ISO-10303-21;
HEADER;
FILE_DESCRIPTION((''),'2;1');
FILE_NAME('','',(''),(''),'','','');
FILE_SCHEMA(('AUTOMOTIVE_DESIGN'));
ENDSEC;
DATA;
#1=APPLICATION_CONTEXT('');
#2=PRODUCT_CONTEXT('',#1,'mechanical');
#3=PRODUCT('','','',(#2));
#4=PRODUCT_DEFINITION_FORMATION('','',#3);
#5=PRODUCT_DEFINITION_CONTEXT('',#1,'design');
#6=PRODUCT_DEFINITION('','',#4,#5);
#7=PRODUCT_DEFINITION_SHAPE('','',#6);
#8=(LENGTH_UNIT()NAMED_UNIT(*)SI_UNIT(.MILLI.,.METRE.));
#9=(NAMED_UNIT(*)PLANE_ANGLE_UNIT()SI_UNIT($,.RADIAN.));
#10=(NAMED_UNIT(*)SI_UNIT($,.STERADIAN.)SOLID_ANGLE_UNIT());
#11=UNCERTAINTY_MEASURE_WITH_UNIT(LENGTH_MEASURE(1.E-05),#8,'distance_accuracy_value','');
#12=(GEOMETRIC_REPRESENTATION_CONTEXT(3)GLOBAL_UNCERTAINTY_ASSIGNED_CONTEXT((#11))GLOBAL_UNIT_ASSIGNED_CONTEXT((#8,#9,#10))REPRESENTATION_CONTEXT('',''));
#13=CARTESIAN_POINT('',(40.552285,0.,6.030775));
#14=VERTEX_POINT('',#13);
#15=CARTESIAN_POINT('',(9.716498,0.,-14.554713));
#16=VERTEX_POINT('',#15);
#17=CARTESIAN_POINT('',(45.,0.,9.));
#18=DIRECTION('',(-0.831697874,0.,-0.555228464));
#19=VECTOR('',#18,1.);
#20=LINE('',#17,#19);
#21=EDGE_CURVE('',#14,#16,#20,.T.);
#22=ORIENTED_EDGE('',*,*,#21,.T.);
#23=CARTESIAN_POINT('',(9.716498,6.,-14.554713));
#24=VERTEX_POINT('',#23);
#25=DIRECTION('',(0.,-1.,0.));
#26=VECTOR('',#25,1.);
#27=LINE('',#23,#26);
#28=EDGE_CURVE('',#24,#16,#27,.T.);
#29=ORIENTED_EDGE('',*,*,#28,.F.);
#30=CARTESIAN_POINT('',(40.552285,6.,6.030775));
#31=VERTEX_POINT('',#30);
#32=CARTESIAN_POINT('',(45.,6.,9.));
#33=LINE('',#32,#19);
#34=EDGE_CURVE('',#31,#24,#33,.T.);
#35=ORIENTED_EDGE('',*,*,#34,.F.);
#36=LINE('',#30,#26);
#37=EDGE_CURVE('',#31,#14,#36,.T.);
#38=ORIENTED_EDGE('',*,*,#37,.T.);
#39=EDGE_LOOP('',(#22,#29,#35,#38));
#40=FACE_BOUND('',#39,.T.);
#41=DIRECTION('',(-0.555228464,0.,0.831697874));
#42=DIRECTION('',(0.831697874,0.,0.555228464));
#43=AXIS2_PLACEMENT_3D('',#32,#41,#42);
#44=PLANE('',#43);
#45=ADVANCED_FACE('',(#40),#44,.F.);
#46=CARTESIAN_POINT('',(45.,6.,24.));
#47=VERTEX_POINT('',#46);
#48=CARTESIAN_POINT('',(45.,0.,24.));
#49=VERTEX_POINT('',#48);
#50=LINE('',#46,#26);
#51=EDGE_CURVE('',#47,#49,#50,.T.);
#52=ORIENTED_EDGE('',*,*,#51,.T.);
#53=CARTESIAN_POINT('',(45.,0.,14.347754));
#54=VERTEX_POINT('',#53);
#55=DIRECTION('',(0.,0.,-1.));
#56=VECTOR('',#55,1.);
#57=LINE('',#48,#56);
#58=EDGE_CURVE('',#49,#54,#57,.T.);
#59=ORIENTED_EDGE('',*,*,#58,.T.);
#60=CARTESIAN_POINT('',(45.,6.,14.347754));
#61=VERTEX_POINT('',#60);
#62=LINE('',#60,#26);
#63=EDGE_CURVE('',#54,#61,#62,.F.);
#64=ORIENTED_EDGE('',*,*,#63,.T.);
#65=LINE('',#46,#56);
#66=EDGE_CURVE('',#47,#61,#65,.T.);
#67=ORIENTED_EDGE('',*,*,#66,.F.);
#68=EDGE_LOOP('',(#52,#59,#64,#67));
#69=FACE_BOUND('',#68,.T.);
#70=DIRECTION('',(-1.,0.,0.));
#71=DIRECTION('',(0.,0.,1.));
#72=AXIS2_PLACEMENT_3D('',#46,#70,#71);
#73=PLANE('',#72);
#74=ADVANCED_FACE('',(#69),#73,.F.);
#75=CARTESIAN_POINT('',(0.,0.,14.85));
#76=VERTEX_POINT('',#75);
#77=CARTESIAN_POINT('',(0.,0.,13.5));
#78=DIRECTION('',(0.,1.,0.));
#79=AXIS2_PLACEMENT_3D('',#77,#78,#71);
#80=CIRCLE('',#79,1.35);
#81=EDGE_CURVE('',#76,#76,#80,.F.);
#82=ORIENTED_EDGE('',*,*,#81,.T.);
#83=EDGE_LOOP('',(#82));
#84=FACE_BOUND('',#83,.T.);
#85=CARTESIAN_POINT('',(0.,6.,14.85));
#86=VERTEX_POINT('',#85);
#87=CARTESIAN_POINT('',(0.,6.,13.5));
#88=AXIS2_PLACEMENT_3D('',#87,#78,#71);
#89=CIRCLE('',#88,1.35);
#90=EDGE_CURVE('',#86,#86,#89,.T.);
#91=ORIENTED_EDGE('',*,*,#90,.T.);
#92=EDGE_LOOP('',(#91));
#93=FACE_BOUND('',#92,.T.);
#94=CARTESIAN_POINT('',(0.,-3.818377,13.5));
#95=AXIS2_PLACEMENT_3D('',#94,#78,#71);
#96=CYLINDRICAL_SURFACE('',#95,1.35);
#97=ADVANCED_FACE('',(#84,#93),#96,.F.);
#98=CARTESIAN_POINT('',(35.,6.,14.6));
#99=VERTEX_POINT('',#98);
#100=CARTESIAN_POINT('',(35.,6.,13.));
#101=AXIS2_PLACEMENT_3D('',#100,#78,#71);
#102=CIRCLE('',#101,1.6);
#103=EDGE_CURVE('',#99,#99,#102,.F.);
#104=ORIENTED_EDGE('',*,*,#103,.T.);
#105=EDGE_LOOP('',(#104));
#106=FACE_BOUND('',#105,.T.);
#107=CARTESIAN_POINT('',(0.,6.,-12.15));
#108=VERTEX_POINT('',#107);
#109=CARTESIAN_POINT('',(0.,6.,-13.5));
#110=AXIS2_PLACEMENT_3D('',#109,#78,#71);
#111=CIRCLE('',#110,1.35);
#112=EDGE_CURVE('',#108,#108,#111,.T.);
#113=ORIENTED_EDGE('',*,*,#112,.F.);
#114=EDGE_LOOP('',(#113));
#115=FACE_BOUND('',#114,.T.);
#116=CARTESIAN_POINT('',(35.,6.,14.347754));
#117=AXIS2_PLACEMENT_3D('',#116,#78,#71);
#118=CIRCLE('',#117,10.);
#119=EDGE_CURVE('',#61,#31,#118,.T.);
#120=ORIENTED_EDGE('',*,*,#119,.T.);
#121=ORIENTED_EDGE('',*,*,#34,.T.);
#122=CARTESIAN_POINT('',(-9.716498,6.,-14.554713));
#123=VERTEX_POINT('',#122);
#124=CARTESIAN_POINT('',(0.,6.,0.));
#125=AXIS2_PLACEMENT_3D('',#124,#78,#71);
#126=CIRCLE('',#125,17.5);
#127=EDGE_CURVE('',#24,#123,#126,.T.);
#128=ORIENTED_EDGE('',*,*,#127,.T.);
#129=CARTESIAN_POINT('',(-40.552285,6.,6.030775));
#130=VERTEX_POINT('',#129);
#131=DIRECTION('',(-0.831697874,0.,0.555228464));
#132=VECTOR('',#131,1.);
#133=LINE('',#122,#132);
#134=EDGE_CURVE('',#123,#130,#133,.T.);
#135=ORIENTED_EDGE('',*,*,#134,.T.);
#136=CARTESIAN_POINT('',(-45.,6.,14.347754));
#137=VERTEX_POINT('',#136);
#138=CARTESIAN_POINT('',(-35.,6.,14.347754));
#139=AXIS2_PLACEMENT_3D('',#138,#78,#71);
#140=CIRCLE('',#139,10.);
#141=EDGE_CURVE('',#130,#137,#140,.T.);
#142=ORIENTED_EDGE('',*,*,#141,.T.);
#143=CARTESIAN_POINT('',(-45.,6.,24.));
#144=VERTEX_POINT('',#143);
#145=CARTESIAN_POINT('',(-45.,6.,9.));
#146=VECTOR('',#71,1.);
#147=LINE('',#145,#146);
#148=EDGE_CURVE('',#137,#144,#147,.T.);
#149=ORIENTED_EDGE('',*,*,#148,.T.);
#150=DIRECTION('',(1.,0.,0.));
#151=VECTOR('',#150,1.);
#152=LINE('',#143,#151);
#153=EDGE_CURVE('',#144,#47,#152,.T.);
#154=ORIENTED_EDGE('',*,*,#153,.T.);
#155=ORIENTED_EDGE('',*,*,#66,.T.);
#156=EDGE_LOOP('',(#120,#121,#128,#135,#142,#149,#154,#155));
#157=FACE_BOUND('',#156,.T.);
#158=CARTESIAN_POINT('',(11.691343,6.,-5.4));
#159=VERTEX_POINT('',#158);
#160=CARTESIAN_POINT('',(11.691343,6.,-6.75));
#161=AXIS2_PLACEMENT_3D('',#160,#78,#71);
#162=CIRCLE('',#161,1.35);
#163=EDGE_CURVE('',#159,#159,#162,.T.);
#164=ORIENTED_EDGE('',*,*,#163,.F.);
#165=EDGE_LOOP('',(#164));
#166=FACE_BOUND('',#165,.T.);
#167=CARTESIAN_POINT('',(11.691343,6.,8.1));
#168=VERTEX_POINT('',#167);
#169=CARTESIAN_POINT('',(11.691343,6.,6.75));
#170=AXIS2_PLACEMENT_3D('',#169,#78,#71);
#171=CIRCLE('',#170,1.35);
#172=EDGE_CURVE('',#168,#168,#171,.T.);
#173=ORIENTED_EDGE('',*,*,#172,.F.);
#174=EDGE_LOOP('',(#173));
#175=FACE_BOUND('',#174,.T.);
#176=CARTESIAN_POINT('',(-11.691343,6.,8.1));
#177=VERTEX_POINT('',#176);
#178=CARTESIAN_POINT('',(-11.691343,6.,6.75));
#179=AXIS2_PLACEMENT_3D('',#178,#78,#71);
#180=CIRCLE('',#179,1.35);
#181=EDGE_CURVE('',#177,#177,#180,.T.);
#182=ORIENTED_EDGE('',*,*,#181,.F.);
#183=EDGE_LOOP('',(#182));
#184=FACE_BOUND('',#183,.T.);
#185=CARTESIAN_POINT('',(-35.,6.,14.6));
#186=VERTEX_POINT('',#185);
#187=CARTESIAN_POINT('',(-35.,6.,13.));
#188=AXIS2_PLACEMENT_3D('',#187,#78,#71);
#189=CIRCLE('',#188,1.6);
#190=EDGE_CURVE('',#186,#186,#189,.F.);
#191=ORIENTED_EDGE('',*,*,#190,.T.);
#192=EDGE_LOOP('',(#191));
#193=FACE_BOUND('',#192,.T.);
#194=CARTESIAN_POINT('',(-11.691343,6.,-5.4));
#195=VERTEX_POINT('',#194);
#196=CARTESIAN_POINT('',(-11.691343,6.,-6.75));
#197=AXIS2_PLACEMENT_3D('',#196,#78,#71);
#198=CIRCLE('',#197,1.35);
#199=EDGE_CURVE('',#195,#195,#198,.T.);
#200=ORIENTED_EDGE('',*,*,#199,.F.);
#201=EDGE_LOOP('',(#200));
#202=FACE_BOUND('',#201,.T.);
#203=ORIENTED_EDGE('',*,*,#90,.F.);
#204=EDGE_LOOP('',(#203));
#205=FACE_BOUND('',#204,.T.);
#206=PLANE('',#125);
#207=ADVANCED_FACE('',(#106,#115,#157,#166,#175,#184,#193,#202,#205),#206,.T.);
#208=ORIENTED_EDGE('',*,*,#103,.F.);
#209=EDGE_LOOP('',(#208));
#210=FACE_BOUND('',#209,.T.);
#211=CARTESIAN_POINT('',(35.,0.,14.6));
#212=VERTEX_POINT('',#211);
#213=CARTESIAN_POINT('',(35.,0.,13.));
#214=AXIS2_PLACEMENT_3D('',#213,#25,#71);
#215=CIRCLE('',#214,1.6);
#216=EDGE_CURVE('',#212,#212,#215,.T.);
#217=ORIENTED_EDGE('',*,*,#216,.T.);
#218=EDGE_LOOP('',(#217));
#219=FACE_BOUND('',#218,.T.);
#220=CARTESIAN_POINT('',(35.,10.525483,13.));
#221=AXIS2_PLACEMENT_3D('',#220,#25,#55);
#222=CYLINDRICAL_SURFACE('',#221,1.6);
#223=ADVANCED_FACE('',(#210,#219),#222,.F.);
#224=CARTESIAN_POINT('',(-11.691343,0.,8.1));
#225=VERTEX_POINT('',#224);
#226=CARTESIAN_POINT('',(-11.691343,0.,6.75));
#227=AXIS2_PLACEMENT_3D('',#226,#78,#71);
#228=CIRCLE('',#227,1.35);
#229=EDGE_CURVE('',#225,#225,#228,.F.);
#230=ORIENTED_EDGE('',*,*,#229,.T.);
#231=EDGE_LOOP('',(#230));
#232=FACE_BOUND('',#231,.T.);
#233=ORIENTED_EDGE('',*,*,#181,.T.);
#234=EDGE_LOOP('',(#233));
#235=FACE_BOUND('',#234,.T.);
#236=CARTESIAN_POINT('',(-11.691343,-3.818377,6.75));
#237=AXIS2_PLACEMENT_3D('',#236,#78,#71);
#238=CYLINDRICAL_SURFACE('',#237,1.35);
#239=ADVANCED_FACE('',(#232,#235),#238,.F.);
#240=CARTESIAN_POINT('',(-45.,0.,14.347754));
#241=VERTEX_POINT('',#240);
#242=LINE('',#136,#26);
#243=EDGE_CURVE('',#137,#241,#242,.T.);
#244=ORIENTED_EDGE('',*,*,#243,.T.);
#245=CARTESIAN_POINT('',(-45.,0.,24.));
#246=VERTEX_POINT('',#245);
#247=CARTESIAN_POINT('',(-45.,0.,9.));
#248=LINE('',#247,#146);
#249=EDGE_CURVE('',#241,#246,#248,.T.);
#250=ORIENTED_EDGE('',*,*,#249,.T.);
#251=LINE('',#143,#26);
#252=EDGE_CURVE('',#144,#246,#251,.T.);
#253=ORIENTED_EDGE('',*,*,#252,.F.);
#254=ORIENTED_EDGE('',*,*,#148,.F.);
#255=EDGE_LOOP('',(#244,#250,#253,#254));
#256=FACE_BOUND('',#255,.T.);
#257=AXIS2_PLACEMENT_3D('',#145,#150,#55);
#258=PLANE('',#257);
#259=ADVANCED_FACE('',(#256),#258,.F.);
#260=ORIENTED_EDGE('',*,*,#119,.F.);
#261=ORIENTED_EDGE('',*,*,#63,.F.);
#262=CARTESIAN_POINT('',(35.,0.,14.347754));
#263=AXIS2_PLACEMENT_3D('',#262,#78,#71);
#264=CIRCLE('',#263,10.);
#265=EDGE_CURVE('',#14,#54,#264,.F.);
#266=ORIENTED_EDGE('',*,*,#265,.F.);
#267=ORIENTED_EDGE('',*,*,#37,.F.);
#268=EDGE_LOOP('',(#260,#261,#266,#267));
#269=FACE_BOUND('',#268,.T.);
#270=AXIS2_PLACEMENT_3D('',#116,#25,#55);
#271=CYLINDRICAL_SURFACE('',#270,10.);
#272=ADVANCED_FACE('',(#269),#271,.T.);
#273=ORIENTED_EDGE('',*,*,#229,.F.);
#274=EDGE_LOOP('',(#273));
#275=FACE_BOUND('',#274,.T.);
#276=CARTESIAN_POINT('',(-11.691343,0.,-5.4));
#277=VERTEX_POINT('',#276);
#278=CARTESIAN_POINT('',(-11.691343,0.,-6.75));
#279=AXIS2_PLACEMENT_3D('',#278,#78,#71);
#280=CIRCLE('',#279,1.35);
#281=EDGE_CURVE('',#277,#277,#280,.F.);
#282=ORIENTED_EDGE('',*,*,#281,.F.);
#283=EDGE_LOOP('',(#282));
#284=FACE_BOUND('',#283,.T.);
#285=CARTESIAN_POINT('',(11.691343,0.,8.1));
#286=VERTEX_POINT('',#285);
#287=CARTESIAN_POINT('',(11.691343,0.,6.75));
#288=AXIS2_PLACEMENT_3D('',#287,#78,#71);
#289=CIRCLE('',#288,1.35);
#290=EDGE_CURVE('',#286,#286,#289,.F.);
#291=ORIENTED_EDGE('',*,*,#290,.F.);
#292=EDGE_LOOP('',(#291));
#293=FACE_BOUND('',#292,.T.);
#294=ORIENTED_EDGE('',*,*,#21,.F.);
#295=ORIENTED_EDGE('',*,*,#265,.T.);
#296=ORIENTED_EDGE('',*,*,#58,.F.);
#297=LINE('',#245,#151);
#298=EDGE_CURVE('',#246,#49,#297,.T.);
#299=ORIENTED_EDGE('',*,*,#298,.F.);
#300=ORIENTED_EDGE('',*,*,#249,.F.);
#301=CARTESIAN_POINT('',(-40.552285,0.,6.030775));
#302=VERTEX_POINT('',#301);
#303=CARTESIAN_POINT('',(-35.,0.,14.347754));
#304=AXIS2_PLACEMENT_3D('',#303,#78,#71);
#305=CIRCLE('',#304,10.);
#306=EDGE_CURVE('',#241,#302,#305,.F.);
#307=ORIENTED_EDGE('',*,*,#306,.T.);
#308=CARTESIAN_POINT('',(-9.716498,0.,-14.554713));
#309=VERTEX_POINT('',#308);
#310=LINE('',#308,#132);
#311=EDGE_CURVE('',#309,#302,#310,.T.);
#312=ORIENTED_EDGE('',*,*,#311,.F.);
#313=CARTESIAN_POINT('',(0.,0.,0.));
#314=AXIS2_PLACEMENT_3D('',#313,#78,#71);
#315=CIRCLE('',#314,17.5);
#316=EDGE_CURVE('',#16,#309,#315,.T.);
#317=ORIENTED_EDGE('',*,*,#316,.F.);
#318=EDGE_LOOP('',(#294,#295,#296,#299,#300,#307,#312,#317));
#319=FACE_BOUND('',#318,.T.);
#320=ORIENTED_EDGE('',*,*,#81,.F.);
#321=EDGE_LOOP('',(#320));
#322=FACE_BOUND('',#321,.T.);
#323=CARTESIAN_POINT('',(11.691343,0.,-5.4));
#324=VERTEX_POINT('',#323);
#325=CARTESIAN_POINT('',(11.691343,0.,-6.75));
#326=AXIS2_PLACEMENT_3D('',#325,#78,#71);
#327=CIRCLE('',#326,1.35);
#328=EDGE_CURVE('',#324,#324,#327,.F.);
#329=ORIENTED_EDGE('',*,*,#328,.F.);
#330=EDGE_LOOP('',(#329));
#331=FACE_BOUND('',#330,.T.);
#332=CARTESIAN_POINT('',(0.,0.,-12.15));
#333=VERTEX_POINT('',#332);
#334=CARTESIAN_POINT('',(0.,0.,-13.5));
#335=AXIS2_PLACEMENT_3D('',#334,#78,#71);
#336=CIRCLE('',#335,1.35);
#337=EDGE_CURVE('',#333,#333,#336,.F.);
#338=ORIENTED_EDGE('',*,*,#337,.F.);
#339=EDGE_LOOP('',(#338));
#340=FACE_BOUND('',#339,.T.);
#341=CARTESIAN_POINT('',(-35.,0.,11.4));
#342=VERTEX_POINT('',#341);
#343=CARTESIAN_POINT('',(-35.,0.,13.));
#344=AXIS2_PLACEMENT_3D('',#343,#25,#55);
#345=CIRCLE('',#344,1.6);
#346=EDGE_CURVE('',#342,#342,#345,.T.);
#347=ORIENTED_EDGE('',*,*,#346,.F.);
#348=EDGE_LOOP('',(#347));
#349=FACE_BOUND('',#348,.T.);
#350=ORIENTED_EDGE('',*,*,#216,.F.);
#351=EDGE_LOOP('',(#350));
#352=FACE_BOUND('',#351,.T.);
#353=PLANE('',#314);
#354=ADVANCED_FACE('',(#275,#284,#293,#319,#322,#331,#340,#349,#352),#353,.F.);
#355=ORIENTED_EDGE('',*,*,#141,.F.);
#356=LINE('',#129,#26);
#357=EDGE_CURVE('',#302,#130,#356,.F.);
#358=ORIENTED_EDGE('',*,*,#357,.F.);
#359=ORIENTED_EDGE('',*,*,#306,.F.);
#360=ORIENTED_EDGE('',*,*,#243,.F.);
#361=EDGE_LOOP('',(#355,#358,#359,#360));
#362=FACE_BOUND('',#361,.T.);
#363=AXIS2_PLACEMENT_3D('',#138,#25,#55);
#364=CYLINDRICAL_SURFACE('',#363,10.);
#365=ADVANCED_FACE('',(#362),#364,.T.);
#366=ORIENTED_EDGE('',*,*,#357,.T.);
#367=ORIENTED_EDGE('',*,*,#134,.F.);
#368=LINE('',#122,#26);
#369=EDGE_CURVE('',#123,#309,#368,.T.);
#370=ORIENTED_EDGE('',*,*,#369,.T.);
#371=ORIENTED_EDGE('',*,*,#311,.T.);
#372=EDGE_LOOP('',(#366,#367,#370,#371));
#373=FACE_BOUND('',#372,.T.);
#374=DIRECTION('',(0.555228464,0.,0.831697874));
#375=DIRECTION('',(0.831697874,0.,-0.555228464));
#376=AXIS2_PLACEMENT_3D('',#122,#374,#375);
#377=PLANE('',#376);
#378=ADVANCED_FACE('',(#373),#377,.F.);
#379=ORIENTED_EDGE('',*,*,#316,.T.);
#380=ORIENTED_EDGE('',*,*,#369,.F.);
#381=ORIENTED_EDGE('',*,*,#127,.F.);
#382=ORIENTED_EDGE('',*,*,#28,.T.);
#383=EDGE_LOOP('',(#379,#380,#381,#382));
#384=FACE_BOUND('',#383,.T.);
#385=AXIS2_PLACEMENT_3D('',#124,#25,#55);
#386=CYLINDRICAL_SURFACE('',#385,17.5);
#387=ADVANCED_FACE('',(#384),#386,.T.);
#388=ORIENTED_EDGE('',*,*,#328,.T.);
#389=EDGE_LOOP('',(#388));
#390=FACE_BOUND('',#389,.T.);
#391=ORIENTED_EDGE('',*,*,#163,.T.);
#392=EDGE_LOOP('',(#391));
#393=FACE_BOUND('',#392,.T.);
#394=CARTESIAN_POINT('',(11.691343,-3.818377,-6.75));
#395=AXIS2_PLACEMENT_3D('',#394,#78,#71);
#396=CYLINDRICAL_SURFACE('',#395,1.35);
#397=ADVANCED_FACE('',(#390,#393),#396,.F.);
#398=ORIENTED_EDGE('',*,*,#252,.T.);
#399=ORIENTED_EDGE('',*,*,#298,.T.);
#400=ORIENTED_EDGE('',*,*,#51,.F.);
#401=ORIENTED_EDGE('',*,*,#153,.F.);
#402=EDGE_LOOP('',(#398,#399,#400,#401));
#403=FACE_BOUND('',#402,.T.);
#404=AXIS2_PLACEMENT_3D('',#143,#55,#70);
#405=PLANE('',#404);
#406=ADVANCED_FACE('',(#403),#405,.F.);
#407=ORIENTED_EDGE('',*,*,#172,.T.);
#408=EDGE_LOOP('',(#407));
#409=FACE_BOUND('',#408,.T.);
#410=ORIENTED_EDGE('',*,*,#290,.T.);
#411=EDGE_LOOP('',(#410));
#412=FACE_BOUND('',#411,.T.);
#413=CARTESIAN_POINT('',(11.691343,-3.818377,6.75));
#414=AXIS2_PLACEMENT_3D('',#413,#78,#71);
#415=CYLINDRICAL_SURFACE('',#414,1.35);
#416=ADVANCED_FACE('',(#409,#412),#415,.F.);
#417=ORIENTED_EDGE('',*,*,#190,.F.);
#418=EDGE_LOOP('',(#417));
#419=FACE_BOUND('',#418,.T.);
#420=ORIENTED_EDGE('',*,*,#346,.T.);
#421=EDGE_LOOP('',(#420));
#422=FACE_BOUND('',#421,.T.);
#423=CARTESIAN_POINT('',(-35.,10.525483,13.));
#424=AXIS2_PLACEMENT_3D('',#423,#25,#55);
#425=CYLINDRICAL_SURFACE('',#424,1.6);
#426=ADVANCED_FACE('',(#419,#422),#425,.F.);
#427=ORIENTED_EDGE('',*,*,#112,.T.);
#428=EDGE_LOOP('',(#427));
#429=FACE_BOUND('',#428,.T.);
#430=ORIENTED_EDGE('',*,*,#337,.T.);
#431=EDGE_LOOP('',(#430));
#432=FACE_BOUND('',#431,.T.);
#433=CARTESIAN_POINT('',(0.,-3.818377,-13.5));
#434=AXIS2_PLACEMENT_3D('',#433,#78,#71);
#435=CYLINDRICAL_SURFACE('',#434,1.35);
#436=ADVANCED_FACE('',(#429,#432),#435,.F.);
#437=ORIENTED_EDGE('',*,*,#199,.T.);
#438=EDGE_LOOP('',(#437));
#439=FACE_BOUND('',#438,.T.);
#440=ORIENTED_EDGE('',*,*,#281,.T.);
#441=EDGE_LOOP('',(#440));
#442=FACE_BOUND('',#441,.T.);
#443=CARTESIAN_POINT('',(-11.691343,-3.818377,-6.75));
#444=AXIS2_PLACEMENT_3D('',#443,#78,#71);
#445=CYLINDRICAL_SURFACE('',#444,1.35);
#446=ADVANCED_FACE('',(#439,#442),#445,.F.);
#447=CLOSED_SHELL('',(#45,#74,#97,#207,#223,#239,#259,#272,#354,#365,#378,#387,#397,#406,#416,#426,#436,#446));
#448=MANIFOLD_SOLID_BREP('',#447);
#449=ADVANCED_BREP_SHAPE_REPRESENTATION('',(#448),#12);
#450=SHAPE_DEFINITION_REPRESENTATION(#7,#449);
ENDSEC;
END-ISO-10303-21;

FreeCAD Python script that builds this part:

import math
import FreeCAD as App
import Part
import Sketcher


def edges_at(feature, points):
    """Names of the edges that pass closest to the given points."""
    edges = feature.Shape.Edges
    near = lambda p: min(range(len(edges)), key=lambda i: edges[i].distToShape(Part.Vertex(*p))[0])
    return sorted({f"Edge{near(p) + 1}" for p in points})

doc = App.newDocument("Part")
body = doc.addObject("PartDesign::Body", "Body")

sketch1 = doc.addObject("Sketcher::SketchObject", "Sketch")
body.addObject(sketch1)
sketch1.AttachmentSupport = (doc.XZ_Plane, [""])
sketch1.MapMode = "FlatFace"
sketch1.addGeometry([
    Part.LineSegment(App.Vector(-9.716498, -14.554713, 0), App.Vector(-45, 9, 0)),
    Part.LineSegment(App.Vector(-45, 9, 0), App.Vector(-45, 24, 0)),
    Part.LineSegment(App.Vector(-45, 24, 0), App.Vector(45, 24, 0)),
    Part.LineSegment(App.Vector(45, 24, 0), App.Vector(45, 9, 0)),
    Part.LineSegment(App.Vector(45, 9, 0), App.Vector(9.716498, -14.554713, 0)),
    Part.ArcOfCircle(Part.Circle(App.Vector(0, 0, 0), App.Vector(0, 0, 1), 17.5), math.radians(-123.726452), math.radians(-56.273548)),
], False)
sketch1.addConstraint([
    Sketcher.Constraint("Coincident", 0, 2, 1, 1),
    Sketcher.Constraint("Coincident", 1, 2, 2, 1),
    Sketcher.Constraint("Coincident", 2, 2, 3, 1),
    Sketcher.Constraint("Coincident", 3, 2, 4, 1),
    Sketcher.Constraint("Tangent", 4, 2, 5, 2),
    Sketcher.Constraint("Tangent", 5, 1, 0, 1),
    Sketcher.Constraint("Vertical", 1),
    Sketcher.Constraint("Horizontal", 2),
    Sketcher.Constraint("Vertical", 3),
    Sketcher.Constraint("Coincident", 5, 3, -1, 1),
    Sketcher.Constraint("Symmetric", 0, 2, 3, 2, -2),
    Sketcher.Constraint("Radius", 5, 17.5),
    Sketcher.Constraint("DistanceX", 2, 1, 2, 2, 90.0),
    Sketcher.Constraint("DistanceY", 1, 1, 1, 2, 15.0),
    Sketcher.Constraint("DistanceY", -1, 1, 0, 2, 9.0),
])
pad1 = doc.addObject("PartDesign::Pad", "Pad")
body.addObject(pad1)
pad1.Profile = sketch1
pad1.Length = 6
pad1.Reversed = True

sketch2 = doc.addObject("Sketcher::SketchObject", "Sketch001")
body.addObject(sketch2)
sketch2.AttachmentSupport = (doc.XZ_Plane, [""])
sketch2.MapMode = "FlatFace"
sketch2.AttachmentOffset = App.Placement(App.Vector(0, 0, -6), App.Rotation())
sketch2.addGeometry([
    Part.Circle(App.Vector(0, -13.5, 0), App.Vector(0, 0, 1), 1.35),
    Part.Circle(App.Vector(11.691343, -6.75, 0), App.Vector(0, 0, 1), 1.35),
    Part.Circle(App.Vector(11.691343, 6.75, 0), App.Vector(0, 0, 1), 1.35),
    Part.Circle(App.Vector(0, 13.5, 0), App.Vector(0, 0, 1), 1.35),
    Part.Circle(App.Vector(-11.691343, 6.75, 0), App.Vector(0, 0, 1), 1.35),
    Part.Circle(App.Vector(-11.691343, -6.75, 0), App.Vector(0, 0, 1), 1.35),
], False)
sketch2.addConstraint([
    Sketcher.Constraint("Equal", 0, 1),
    Sketcher.Constraint("Equal", 1, 2),
    Sketcher.Constraint("Equal", 2, 3),
    Sketcher.Constraint("Equal", 3, 4),
    Sketcher.Constraint("Equal", 4, 5),
    Sketcher.Constraint("Symmetric", 0, 3, 3, 3, -1, 1),
    Sketcher.Constraint("Symmetric", 1, 3, 4, 3, -1, 1),
    Sketcher.Constraint("Symmetric", 2, 3, 5, 3, -1, 1),
    Sketcher.Constraint("Symmetric", 2, 3, 4, 3, -2),
    Sketcher.Constraint("PointOnObject", 0, 3, -2),
    Sketcher.Constraint("Diameter", 0, 2.7),
    Sketcher.Constraint("DistanceY", 0, 3, 3, 3, 27.0),
    Sketcher.Constraint("DistanceY", 1, 3, 2, 3, 13.5),
    Sketcher.Constraint("DistanceX", -1, 1, 1, 3, 11.691343),
])
pocket1 = doc.addObject("PartDesign::Pocket", "Pocket")
body.addObject(pocket1)
pocket1.Profile = sketch2
pocket1.Length = 6
pocket1.Reversed = True
doc.recompute()

fillet = doc.addObject("PartDesign::Fillet", "Fillet")
body.addObject(fillet)
fillet.Base = (pocket1, edges_at(pocket1, [(45, 3, 9), (-45, 3, 9)]))
fillet.Radius = 10

sketch3 = doc.addObject("Sketcher::SketchObject", "Sketch002")
body.addObject(sketch3)
sketch3.AttachmentSupport = (doc.XZ_Plane, [""])
sketch3.MapMode = "FlatFace"
sketch3.addGeometry([
    Part.Circle(App.Vector(-35, 13, 0), App.Vector(0, 0, 1), 1.6),
    Part.Circle(App.Vector(35, 13, 0), App.Vector(0, 0, 1), 1.6),
], False)
sketch3.addConstraint([
    Sketcher.Constraint("Equal", 0, 1),
    Sketcher.Constraint("Symmetric", 0, 3, 1, 3, -2),
    Sketcher.Constraint("Diameter", 0, 3.2),
    Sketcher.Constraint("DistanceX", 0, 3, -1, 1, 35.0),
    Sketcher.Constraint("DistanceY", -1, 1, 0, 3, 13.0),
])
pocket2 = doc.addObject("PartDesign::Pocket", "Pocket001")
body.addObject(pocket2)
pocket2.Profile = sketch3
pocket2.Length = 6

doc.recompute()
